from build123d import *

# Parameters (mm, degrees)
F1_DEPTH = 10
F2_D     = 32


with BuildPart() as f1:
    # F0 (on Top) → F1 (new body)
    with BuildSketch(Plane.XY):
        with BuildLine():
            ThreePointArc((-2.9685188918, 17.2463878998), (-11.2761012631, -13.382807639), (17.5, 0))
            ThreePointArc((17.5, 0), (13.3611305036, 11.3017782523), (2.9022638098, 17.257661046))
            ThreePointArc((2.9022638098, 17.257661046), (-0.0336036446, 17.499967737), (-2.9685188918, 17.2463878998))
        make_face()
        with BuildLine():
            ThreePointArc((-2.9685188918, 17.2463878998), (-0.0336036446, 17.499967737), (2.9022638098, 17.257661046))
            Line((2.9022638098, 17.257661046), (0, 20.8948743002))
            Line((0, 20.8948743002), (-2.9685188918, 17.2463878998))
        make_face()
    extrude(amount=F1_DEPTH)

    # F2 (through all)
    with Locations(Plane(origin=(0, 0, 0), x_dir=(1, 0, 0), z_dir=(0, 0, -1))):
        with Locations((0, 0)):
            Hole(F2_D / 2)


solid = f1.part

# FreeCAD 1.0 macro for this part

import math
import FreeCAD as App
import Part
import Sketcher
from FreeCAD import Vector

doc = App.newDocument("Part")
body = doc.addObject("PartDesign::Body", "Body")

sketch1 = body.newObject("Sketcher::SketchObject", "Sketch")
sketch1.AttachmentSupport = (doc.getObject("XY_Plane"), [""])
sketch1.MapMode = "FlatFace"
sketch1.addGeometry(Part.ArcOfCircle(Part.Circle(Vector(0, 0, 0), Vector(0, 0, 1), 17.5), math.radians(100), math.radians(360)), False)
sketch1.addGeometry(Part.ArcOfCircle(Part.Circle(Vector(0, 0, 0), Vector(0, 0, 1), 17.5), math.radians(0), math.radians(80)), False)
sketch1.addGeometry(Part.LineSegment(Vector(2.9, 17.3, 0), Vector(0, 20.9, 0)), False)
sketch1.addGeometry(Part.LineSegment(Vector(0, 20.9, 0), Vector(-3, 17.2, 0)), False)
sketch1.addConstraint(Sketcher.Constraint("Tangent", 0, 2, 1, 1))
sketch1.addConstraint(Sketcher.Constraint("Coincident", 1, 2, 2, 1))
sketch1.addConstraint(Sketcher.Constraint("Coincident", 2, 2, 3, 1))
sketch1.addConstraint(Sketcher.Constraint("Coincident", 3, 2, 0, 1))
sketch1.addConstraint(Sketcher.Constraint("Coincident", 0, 3, -1, 1))
sketch1.addConstraint(Sketcher.Constraint("Equal", 0, 1))
sketch1.addConstraint(Sketcher.Constraint("PointOnObject", 0, 2, -1))
sketch1.addConstraint(Sketcher.Constraint("PointOnObject", 2, 2, -2))
sketch1.addConstraint(Sketcher.Constraint("Radius", 0, 17.5))
sketch1.addConstraint(Sketcher.Constraint("Distance", 2, 4.65322))
sketch1.addConstraint(Sketcher.Constraint("Distance", 3, 4.703569))
sketch1.addConstraint(Sketcher.Constraint("DistanceY", -1, 1, 1, 2, 17.257661))
pad1 = body.newObject("PartDesign::Pad", "Pad")
pad1.Profile = sketch1
pad1.Length = 10

sketch2 = body.newObject("Sketcher::SketchObject", "Sketch001")
sketch2.AttachmentSupport = (doc.getObject("XY_Plane"), [""])
sketch2.MapMode = "FlatFace"
sketch2.addGeometry(Part.Circle(Vector(0, 0, 0), Vector(0, 0, 1), 16), False)
sketch2.addConstraint(Sketcher.Constraint("Coincident", 0, 3, -1, 1))
sketch2.addConstraint(Sketcher.Constraint("Diameter", 0, 32.0))
doc.recompute()
hole = body.newObject("PartDesign::Hole", "Hole")
hole.Profile = sketch2
hole.ThreadType = "None"
hole.Diameter = 32
hole.DepthType = "ThroughAll"
hole.Reversed = True

doc.recompute()
